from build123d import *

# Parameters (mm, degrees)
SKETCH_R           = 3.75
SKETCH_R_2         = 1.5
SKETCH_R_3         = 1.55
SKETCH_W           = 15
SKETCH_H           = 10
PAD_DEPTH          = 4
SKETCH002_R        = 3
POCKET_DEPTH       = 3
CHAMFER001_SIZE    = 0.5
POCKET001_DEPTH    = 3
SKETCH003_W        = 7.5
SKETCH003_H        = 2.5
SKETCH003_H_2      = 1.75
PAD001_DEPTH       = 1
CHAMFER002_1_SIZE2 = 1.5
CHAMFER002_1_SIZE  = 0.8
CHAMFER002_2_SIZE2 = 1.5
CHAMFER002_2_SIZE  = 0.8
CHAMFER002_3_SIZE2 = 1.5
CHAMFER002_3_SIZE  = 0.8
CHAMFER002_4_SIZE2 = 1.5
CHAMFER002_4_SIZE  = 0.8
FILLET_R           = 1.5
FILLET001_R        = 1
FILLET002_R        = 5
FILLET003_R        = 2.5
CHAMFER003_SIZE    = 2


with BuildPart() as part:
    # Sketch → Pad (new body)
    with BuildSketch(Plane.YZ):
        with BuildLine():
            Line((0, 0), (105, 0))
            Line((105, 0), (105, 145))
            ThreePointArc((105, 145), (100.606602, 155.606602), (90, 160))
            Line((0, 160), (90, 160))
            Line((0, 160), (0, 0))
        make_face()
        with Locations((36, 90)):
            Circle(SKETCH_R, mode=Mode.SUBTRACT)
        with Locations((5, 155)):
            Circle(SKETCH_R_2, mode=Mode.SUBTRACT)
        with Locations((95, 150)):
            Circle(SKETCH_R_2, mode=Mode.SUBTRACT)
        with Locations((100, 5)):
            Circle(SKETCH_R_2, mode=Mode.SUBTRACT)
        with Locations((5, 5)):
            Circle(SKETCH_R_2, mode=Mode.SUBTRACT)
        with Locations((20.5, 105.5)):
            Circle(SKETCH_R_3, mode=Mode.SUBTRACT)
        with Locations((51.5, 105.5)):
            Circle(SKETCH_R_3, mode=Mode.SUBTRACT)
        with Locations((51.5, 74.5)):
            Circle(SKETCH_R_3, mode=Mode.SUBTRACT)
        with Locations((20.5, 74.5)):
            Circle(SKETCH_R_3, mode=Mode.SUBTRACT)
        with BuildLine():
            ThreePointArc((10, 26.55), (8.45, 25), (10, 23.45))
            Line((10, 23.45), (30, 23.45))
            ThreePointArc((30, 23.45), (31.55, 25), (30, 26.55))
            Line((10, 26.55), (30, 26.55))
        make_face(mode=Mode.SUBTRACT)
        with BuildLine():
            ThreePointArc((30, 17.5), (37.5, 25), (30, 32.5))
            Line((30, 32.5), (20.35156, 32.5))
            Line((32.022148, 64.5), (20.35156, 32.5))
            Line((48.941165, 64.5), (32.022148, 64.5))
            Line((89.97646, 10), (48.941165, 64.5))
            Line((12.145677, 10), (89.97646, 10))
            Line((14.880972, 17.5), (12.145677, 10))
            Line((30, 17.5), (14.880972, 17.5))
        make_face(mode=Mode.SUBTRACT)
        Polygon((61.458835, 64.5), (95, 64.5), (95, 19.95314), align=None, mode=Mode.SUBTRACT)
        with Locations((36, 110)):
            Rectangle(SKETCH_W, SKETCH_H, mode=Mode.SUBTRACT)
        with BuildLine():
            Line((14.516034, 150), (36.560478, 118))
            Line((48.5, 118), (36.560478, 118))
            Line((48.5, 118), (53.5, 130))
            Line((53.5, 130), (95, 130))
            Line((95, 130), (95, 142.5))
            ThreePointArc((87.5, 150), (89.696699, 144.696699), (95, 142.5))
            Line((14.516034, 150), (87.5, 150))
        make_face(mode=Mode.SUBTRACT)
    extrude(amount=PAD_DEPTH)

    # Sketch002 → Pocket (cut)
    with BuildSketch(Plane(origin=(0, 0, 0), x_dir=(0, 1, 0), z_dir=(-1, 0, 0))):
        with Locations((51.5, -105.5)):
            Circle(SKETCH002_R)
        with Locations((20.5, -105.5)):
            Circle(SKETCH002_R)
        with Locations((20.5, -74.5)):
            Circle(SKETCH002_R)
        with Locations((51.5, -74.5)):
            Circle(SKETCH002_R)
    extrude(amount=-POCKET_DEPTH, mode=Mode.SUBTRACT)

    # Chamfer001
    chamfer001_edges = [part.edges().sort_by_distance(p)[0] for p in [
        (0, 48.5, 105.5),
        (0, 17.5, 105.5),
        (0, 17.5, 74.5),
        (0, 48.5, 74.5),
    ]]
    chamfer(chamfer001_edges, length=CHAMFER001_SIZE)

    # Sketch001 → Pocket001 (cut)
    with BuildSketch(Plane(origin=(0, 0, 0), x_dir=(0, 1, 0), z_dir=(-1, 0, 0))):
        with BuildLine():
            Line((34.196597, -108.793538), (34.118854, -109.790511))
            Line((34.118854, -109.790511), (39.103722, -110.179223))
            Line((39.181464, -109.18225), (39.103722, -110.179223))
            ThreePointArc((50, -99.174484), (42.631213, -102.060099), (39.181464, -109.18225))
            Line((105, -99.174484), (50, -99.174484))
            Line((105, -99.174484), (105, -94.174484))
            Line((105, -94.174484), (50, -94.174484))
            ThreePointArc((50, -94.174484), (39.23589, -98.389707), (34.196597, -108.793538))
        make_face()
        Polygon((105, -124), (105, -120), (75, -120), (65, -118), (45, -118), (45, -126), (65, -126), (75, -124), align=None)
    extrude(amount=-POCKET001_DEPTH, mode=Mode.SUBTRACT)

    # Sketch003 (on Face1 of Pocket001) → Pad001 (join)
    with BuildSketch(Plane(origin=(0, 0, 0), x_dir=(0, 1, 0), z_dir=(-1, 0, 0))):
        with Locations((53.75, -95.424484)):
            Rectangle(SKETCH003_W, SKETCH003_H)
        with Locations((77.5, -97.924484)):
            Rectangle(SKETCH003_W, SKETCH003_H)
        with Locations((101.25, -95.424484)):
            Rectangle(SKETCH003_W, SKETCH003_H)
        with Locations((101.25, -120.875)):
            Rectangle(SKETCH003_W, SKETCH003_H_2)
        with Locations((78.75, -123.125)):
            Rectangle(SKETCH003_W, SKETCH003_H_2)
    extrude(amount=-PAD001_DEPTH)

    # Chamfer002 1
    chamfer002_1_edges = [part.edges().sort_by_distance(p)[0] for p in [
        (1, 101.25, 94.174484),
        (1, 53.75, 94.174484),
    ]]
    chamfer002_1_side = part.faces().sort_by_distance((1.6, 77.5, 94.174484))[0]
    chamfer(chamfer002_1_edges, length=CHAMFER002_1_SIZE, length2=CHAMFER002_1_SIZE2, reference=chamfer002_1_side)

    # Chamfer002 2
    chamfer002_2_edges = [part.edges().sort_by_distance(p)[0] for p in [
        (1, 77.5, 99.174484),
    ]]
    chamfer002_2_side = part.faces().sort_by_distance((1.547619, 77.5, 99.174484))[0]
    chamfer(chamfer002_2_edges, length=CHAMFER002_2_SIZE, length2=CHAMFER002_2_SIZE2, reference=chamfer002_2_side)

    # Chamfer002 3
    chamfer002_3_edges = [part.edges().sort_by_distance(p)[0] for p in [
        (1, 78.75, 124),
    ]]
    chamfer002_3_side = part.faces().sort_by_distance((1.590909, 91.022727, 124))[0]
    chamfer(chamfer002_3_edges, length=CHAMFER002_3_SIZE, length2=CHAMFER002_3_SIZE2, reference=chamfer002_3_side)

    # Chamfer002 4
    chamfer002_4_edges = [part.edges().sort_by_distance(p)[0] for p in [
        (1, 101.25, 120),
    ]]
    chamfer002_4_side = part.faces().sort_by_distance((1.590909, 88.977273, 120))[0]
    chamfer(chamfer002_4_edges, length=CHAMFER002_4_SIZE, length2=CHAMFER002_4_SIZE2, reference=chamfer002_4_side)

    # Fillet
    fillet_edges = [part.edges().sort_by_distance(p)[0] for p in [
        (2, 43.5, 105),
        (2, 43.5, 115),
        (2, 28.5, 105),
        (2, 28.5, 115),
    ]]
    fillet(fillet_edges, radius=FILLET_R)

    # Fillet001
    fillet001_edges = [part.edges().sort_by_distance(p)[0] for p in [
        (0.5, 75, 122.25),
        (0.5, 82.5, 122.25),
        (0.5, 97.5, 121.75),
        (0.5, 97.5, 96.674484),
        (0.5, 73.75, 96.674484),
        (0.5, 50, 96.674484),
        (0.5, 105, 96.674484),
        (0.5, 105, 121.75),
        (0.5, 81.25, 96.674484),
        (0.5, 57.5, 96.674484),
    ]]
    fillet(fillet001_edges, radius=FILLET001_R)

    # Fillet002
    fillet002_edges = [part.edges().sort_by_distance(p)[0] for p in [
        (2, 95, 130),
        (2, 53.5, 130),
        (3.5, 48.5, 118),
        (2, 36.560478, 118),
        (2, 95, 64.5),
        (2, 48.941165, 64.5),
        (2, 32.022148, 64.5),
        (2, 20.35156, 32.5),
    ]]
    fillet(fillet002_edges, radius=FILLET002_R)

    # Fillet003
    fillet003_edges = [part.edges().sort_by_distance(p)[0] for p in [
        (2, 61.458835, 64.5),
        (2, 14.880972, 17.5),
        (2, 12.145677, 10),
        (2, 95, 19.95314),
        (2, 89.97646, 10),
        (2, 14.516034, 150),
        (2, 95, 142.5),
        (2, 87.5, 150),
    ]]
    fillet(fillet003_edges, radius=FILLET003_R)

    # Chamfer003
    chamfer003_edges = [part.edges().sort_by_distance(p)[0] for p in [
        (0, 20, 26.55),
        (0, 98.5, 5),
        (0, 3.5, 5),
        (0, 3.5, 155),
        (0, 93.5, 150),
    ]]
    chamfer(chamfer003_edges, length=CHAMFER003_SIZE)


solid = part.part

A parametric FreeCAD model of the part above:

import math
import FreeCAD as App
import Part
import Sketcher


def edges_at(feature, points):
    """Names of the edges that pass closest to the given points."""
    edges = feature.Shape.Edges
    near = lambda p: min(range(len(edges)), key=lambda i: edges[i].distToShape(Part.Vertex(*p))[0])
    return sorted({f"Edge{near(p) + 1}" for p in points})

doc = App.newDocument("Part")
body = doc.addObject("PartDesign::Body", "Body")

# Sketch on YZ plane
sketch1 = body.newObject("Sketcher::SketchObject", "Sketch")
sketch1.AttachmentSupport = (doc.getObject("YZ_Plane"), [""])
sketch1.MapMode = "FlatFace"
sketch1.addGeometry([
    Part.LineSegment(App.Vector(0, 0, 0), App.Vector(105, 0, 0)),  # 0
    Part.LineSegment(App.Vector(105, 0, 0), App.Vector(105, 145, 0)),  # 1
    Part.ArcOfCircle(Part.Circle(App.Vector(90, 145, 0), App.Vector(0, 0, 1), 15), math.radians(0), math.radians(90)),  # 2
    Part.LineSegment(App.Vector(90, 160, 0), App.Vector(0, 160, 0)),  # 3
    Part.LineSegment(App.Vector(0, 160, 0), App.Vector(0, 0, 0)),  # 4
    Part.Circle(App.Vector(5, 5, 0), App.Vector(0, 0, 1), 1.5),  # 5
    Part.ArcOfCircle(Part.Circle(App.Vector(10, 25, 0), App.Vector(0, 0, 1), 1.6), math.radians(90), math.radians(270)),  # 6
    Part.LineSegment(App.Vector(10, 26.6, 0), App.Vector(30, 26.6, 0)),  # 7
    Part.ArcOfCircle(Part.Circle(App.Vector(30, 25, 0), App.Vector(0, 0, 1), 1.6), math.radians(-90), math.radians(90)),  # 8
    Part.LineSegment(App.Vector(30, 23.4, 0), App.Vector(10, 23.4, 0)),  # 9
    Part.LineSegment(App.Vector(14.9, 17.5, 0), App.Vector(30, 17.5, 0)),  # 10
    Part.ArcOfCircle(Part.Circle(App.Vector(30, 25, 0), App.Vector(0, 0, 1), 7.5), math.radians(-90), math.radians(90)),  # 11
    Part.LineSegment(App.Vector(30, 32.5, 0), App.Vector(20.4, 32.5, 0)),  # 12
    Part.LineSegment(App.Vector(20.4, 32.5, 0), App.Vector(32, 64.5, 0)),  # 13
    Part.LineSegment(App.Vector(32, 64.5, 0), App.Vector(48.9, 64.5, 0)),  # 14
    Part.LineSegment(App.Vector(48.9, 64.5, 0), App.Vector(90, 10, 0)),  # 15
    Part.LineSegment(App.Vector(90, 10, 0), App.Vector(12.1, 10, 0)),  # 16
    Part.LineSegment(App.Vector(12.1, 10, 0), App.Vector(14.9, 17.5, 0)),  # 17
    Part.Circle(App.Vector(20.5, 74.5, 0), App.Vector(0, 0, 1), 1.6),  # 18
    Part.Circle(App.Vector(51.5, 74.5, 0), App.Vector(0, 0, 1), 1.6),  # 19
    Part.Circle(App.Vector(100, 5, 0), App.Vector(0, 0, 1), 1.5),  # 20
    Part.LineSegment(App.Vector(95, 20, 0), App.Vector(61.5, 64.5, 0)),  # 21
    Part.LineSegment(App.Vector(61.5, 64.5, 0), App.Vector(95, 64.5, 0)),  # 22
    Part.LineSegment(App.Vector(95, 64.5, 0), App.Vector(95, 20, 0)),  # 23
    Part.Circle(App.Vector(20.5, 105.5, 0), App.Vector(0, 0, 1), 1.6),  # 24
    Part.Circle(App.Vector(36, 90, 0), App.Vector(0, 0, 1), 3.8),  # 25
    Part.LineSegment(App.Vector(43.5, 105, 0), App.Vector(28.5, 105, 0)),  # 26
    Part.LineSegment(App.Vector(28.5, 105, 0), App.Vector(28.5, 115, 0)),  # 27
    Part.LineSegment(App.Vector(28.5, 115, 0), App.Vector(43.5, 115, 0)),  # 28
    Part.LineSegment(App.Vector(43.5, 115, 0), App.Vector(43.5, 105, 0)),  # 29
    Part.Circle(App.Vector(51.5, 105.5, 0), App.Vector(0, 0, 1), 1.6),  # 30
    Part.Circle(App.Vector(5, 155, 0), App.Vector(0, 0, 1), 1.5),  # 31
    Part.LineSegment(App.Vector(36.6, 118, 0), App.Vector(14.5, 150, 0)),  # 32
    Part.LineSegment(App.Vector(14.5, 150, 0), App.Vector(87.5, 150, 0)),  # 33
    Part.ArcOfCircle(Part.Circle(App.Vector(95, 150, 0), App.Vector(0, 0, 1), 7.5), math.radians(180), math.radians(270)),  # 34
    Part.LineSegment(App.Vector(95, 142.5, 0), App.Vector(95, 130, 0)),  # 35
    Part.LineSegment(App.Vector(95, 130, 0), App.Vector(53.5, 130, 0)),  # 36
    Part.LineSegment(App.Vector(53.5, 130, 0), App.Vector(48.5, 118, 0)),  # 37
    Part.LineSegment(App.Vector(48.5, 118, 0), App.Vector(36.6, 118, 0)),  # 38
    Part.Circle(App.Vector(95, 150, 0), App.Vector(0, 0, 1), 1.5),  # 39
], False)
sketch1.addConstraint([
    Sketcher.Constraint("Coincident", 0, 2, 1, 1),
    Sketcher.Constraint("Tangent", 1, 2, 2, 1),
    Sketcher.Constraint("Tangent", 2, 2, 3, 1),
    Sketcher.Constraint("Coincident", 3, 2, 4, 1),
    Sketcher.Constraint("Coincident", 4, 2, 0, 1),
    Sketcher.Constraint("Tangent", 6, 1, 7, 1),
    Sketcher.Constraint("Tangent", 7, 2, 8, 2),
    Sketcher.Constraint("Tangent", 8, 1, 9, 1),
    Sketcher.Constraint("Tangent", 9, 2, 6, 2),
    Sketcher.Constraint("Tangent", 10, 2, 11, 1),
    Sketcher.Constraint("Tangent", 11, 2, 12, 1),
    Sketcher.Constraint("Coincident", 12, 2, 13, 1),
    Sketcher.Constraint("Coincident", 13, 2, 14, 1),
    Sketcher.Constraint("Coincident", 14, 2, 15, 1),
    Sketcher.Constraint("Coincident", 15, 2, 16, 1),
    Sketcher.Constraint("Coincident", 16, 2, 17, 1),
    Sketcher.Constraint("Coincident", 17, 2, 10, 1),
    Sketcher.Constraint("Coincident", 21, 2, 22, 1),
    Sketcher.Constraint("Coincident", 22, 2, 23, 1),
    Sketcher.Constraint("Coincident", 23, 2, 21, 1),
    Sketcher.Constraint("Coincident", 26, 2, 27, 1),
    Sketcher.Constraint("Coincident", 27, 2, 28, 1),
    Sketcher.Constraint("Coincident", 28, 2, 29, 1),
    Sketcher.Constraint("Coincident", 29, 2, 26, 1),
    Sketcher.Constraint("Coincident", 32, 2, 33, 1),
    Sketcher.Constraint("Coincident", 33, 2, 34, 1),
    Sketcher.Constraint("Coincident", 34, 2, 35, 1),
    Sketcher.Constraint("Coincident", 35, 2, 36, 1),
    Sketcher.Constraint("Coincident", 36, 2, 37, 1),
    Sketcher.Constraint("Coincident", 37, 2, 38, 1),
    Sketcher.Constraint("Coincident", 38, 2, 32, 1),
    Sketcher.Constraint("Horizontal", 0),
    Sketcher.Constraint("Vertical", 1),
    Sketcher.Constraint("Horizontal", 3),
    Sketcher.Constraint("Vertical", 4),
    Sketcher.Constraint("Horizontal", 7),
    Sketcher.Constraint("Horizontal", 9),
    Sketcher.Constraint("Horizontal", 10),
    Sketcher.Constraint("Horizontal", 12),
    Sketcher.Constraint("Horizontal", 14),
    Sketcher.Constraint("Horizontal", 16),
    Sketcher.Constraint("Horizontal", 22),
    Sketcher.Constraint("Vertical", 23),
    Sketcher.Constraint("Horizontal", 26),
    Sketcher.Constraint("Vertical", 27),
    Sketcher.Constraint("Horizontal", 28),
    Sketcher.Constraint("Vertical", 29),
    Sketcher.Constraint("Horizontal", 33),
    Sketcher.Constraint("Vertical", 35),
    Sketcher.Constraint("Horizontal", 36),
    Sketcher.Constraint("Horizontal", 38),
    Sketcher.Constraint("Coincident", 4, 2, -1, 1),
    Sketcher.Constraint("Coincident", 11, 3, 8, 3),
    Sketcher.Constraint("Coincident", 39, 3, 34, 3),
    Sketcher.Constraint("Equal", 8, 18),
    Sketcher.Constraint("Equal", 18, 19),
    Sketcher.Constraint("Equal", 5, 20),
    Sketcher.Constraint("Equal", 19, 24),
    Sketcher.Constraint("Equal", 24, 30),
    Sketcher.Constraint("Equal", 20, 31),
    Sketcher.Constraint("Equal", 11, 34),
    Sketcher.Constraint("Equal", 31, 39),
    Sketcher.Constraint("Parallel", 13, 17),
    Sketcher.Constraint("Parallel", 15, 21),
    Sketcher.Constraint("Horizontal", 18, 3, 19, 3),
    Sketcher.Constraint("Horizontal", 5, 3, 20, 3),
    Sketcher.Constraint("Horizontal", 24, 3, 30, 3),
    Sketcher.Constraint("Horizontal", 14, 2, 21, 2),
    Sketcher.Constraint("Horizontal", 39, 3, 32, 2),
    Sketcher.Constraint("Vertical", 18, 3, 24, 3),
    Sketcher.Constraint("Vertical", 19, 3, 30, 3),
    Sketcher.Constraint("Vertical", 5, 3, 31, 3),
    Sketcher.Constraint("Vertical", 39, 3, 22, 2),
    Sketcher.Constraint("Vertical", 23, 2, 34, 2),
    Sketcher.Constraint("Diameter", 5, 3.0),
    Sketcher.Constraint("Radius", 2, 14.999999),
    Sketcher.Constraint("Diameter", 18, 3.1),
    Sketcher.Constraint("Diameter", 25, 7.5),
    Sketcher.Constraint("Radius", 11, 7.5),
    Sketcher.Constraint("DistanceX", 0, 1, 0, 2, 105.0),
    Sketcher.Constraint("DistanceX", 7, 1, 7, 2, 20.0),
    Sketcher.Constraint("DistanceX", 26, 2, 26, 1, 15.0),
    Sketcher.Constraint("DistanceY", 1, 1, 1, 2, 145.0),
    Sketcher.Constraint("DistanceY", 27, 1, 27, 2, 10.0),
    Sketcher.Constraint("Distance", 37, 13.0),
    Sketcher.Constraint("DistanceX", 36, 2, 36, 1, 41.5),
    Sketcher.Constraint("DistanceY", 35, 2, 35, 1, 12.5),
    Sketcher.Constraint("DistanceX", -1, 1, 5, 3, 5.0),
    Sketcher.Constraint("DistanceY", -1, 1, 5, 3, 5.0),
    Sketcher.Constraint("DistanceX", -1, 1, 6, 3, 10.0),
    Sketcher.Constraint("DistanceY", -1, 1, 6, 3, 25.0),
    Sketcher.Constraint("DistanceX", -1, 1, 20, 3, 100.0),
    Sketcher.Constraint("DistanceX", -1, 1, 25, 3, 36.0),
    Sketcher.Constraint("DistanceY", -1, 1, 25, 3, 90.0),
    Sketcher.Constraint("DistanceY", -1, 1, 31, 3, 155.0),
    Sketcher.Constraint("DistanceX", -1, 1, 34, 3, 95.0),
    Sketcher.Constraint("DistanceY", -1, 1, 34, 3, 150.0),
    Sketcher.Constraint("DistanceY", -1, 1, 15, 2, 10.0),
    Sketcher.Constraint("DistanceY", -1, 1, 26, 2, 105.0),
    Sketcher.Constraint("DistanceY", -1, 1, 37, 2, 118.0),
    Sketcher.Constraint("DistanceX", 18, 3, 19, 3, 31.0),
    Sketcher.Constraint("DistanceY", 18, 3, 24, 3, 31.0),
    Sketcher.Constraint("DistanceY", 13, 2, 18, 3, 10.0),
    Sketcher.Constraint("DistanceY", 11, 2, 13, 2, 32.0),
    Sketcher.Constraint("DistanceX", 24, 3, 26, 2, 8.0),
    Sketcher.Constraint("DistanceX", 28, 2, 36, 2, 10.0),
    Sketcher.Constraint("DistanceX", 12, 2, 12, 1, 9.64844),
    Sketcher.Constraint("DistanceX", 38, 2, 38, 1, 11.939522),
    Sketcher.Constraint("DistanceY", 23, 2, 23, 1, 44.54686),
    Sketcher.Constraint("Distance", 32, 38.858172),
    Sketcher.Constraint("DistanceX", 10, 1, 10, 2, 15.119028),
    Sketcher.Constraint("DistanceX", 14, 1, 14, 2, 16.919017),
    Sketcher.Constraint("DistanceX", 16, 2, 16, 1, 77.830783),
    Sketcher.Constraint("DistanceX", 22, 1, 22, 2, 33.541165),
])
pad1 = body.newObject("PartDesign::Pad", "Pad")
pad1.Profile = sketch1
pad1.Length = 4

# Sketch on YZ plane
sketch2 = body.newObject("Sketcher::SketchObject", "Sketch001")
sketch2.AttachmentSupport = (doc.getObject("YZ_Plane"), [""])
sketch2.MapMode = "FlatFace"
sketch2.addGeometry([
    Part.Circle(App.Vector(51.5, 105.5, 0), App.Vector(0, 0, 1), 3),
    Part.Circle(App.Vector(20.5, 105.5, 0), App.Vector(0, 0, 1), 3),
    Part.Circle(App.Vector(20.5, 74.5, 0), App.Vector(0, 0, 1), 3),
    Part.Circle(App.Vector(51.5, 74.5, 0), App.Vector(0, 0, 1), 3),
], False)
sketch2.addConstraint([
    Sketcher.Constraint("Equal", 0, 1),
    Sketcher.Constraint("Equal", 1, 2),
    Sketcher.Constraint("Equal", 2, 3),
    Sketcher.Constraint("Horizontal", 0, 3, 1, 3),
    Sketcher.Constraint("Horizontal", 2, 3, 3, 3),
    Sketcher.Constraint("Vertical", 1, 3, 2, 3),
    Sketcher.Constraint("Vertical", 0, 3, 3, 3),
    Sketcher.Constraint("Diameter", 0, 6.0),
    Sketcher.Constraint("DistanceX", 1, 3, 0, 3, 31.0),
    Sketcher.Constraint("DistanceY", 2, 3, 1, 3, 31.0),
    Sketcher.Constraint("DistanceX", -1, 1, 0, 3, 51.5),
    Sketcher.Constraint("DistanceY", -1, 1, 0, 3, 105.5),
])
pocket1 = body.newObject("PartDesign::Pocket", "Pocket")
pocket1.Profile = sketch2
pocket1.Length = 3
pocket1.Reversed = True
doc.recompute()

chamfer = body.newObject("PartDesign::Chamfer", "Chamfer")
chamfer.Base = (pocket1, edges_at(pocket1, [
    (0, 48.5, 105.5),
    (0, 17.5, 105.5),
    (0, 17.5, 74.5),
    (0, 48.5, 74.5),
]))
chamfer.Size = 0.5

# Sketch on YZ plane
sketch3 = body.newObject("Sketcher::SketchObject", "Sketch002")
sketch3.AttachmentSupport = (doc.getObject("YZ_Plane"), [""])
sketch3.MapMode = "FlatFace"
sketch3.addGeometry([
    Part.LineSegment(App.Vector(34.196597, 108.793538, 0), App.Vector(34.118854, 109.790511, 0)),  # 0
    Part.LineSegment(App.Vector(34.118854, 109.790511, 0), App.Vector(39.103722, 110.179223, 0)),  # 1
    Part.LineSegment(App.Vector(39.103722, 110.179223, 0), App.Vector(39.181464, 109.18225, 0)),  # 2
    Part.ArcOfCircle(Part.Circle(App.Vector(50, 110.025862, 0), App.Vector(0, 0, 1), 10.851378), math.radians(-175.54119), math.radians(-90.000001)),  # 3
    Part.LineSegment(App.Vector(50, 99.174484, 0), App.Vector(105, 99.174484, 0)),  # 4
    Part.LineSegment(App.Vector(105, 99.174484, 0), App.Vector(105, 94.174484, 0)),  # 5
    Part.LineSegment(App.Vector(105, 94.174484, 0), App.Vector(50, 94.174484, 0)),  # 6
    Part.ArcOfCircle(Part.Circle(App.Vector(50.000001, 110.025863, 0), App.Vector(0, 0, 1), 15.851379), math.radians(-175.541188), math.radians(-90.000004)),  # 7
    Part.LineSegment(App.Vector(105, 124, 0), App.Vector(105, 120, 0)),  # 8
    Part.LineSegment(App.Vector(105, 120, 0), App.Vector(75, 120, 0)),  # 9
    Part.LineSegment(App.Vector(75, 120, 0), App.Vector(65, 118, 0)),  # 10
    Part.LineSegment(App.Vector(65, 118, 0), App.Vector(45, 118, 0)),  # 11
    Part.LineSegment(App.Vector(45, 118, 0), App.Vector(45, 126, 0)),  # 12
    Part.LineSegment(App.Vector(45, 126, 0), App.Vector(65, 126, 0)),  # 13
    Part.LineSegment(App.Vector(65, 126, 0), App.Vector(75, 124, 0)),  # 14
    Part.LineSegment(App.Vector(75, 124, 0), App.Vector(105, 124, 0)),  # 15
], False)
sketch3.addConstraint([
    Sketcher.Constraint("Coincident", 0, 2, 1, 1),
    Sketcher.Constraint("Coincident", 1, 2, 2, 1),
    Sketcher.Constraint("Coincident", 2, 2, 3, 1),
    Sketcher.Constraint("Coincident", 3, 2, 4, 1),
    Sketcher.Constraint("Coincident", 4, 2, 5, 1),
    Sketcher.Constraint("Coincident", 5, 2, 6, 1),
    Sketcher.Constraint("Coincident", 6, 2, 7, 2),
    Sketcher.Constraint("Coincident", 7, 1, 0, 1),
    Sketcher.Constraint("Coincident", 8, 2, 9, 1),
    Sketcher.Constraint("Coincident", 9, 2, 10, 1),
    Sketcher.Constraint("Coincident", 10, 2, 11, 1),
    Sketcher.Constraint("Coincident", 11, 2, 12, 1),
    Sketcher.Constraint("Coincident", 12, 2, 13, 1),
    Sketcher.Constraint("Coincident", 13, 2, 14, 1),
    Sketcher.Constraint("Coincident", 14, 2, 15, 1),
    Sketcher.Constraint("Coincident", 15, 2, 8, 1),
    Sketcher.Constraint("Horizontal", 4),
    Sketcher.Constraint("Vertical", 5),
    Sketcher.Constraint("Horizontal", 6),
    Sketcher.Constraint("Vertical", 8),
    Sketcher.Constraint("Horizontal", 9),
    Sketcher.Constraint("Horizontal", 11),
    Sketcher.Constraint("Vertical", 12),
    Sketcher.Constraint("Horizontal", 13),
    Sketcher.Constraint("Horizontal", 15),
    Sketcher.Constraint("Coincident", 7, 3, 3, 3),
    Sketcher.Constraint("DistanceX", 4, 1, 4, 2, 55.0),
    Sketcher.Constraint("DistanceX", 6, 2, 6, 1, 55.0),
    Sketcher.Constraint("DistanceX", 9, 2, 9, 1, 30.0),
    Sketcher.Constraint("DistanceX", 11, 2, 11, 1, 20.0),
    Sketcher.Constraint("DistanceX", 13, 1, 13, 2, 20.0),
    Sketcher.Constraint("DistanceX", 15, 1, 15, 2, 30.0),
    Sketcher.Constraint("DistanceY", 5, 2, 5, 1, 5.0),
    Sketcher.Constraint("DistanceY", 8, 2, 8, 1, 4.0),
    Sketcher.Constraint("DistanceY", 12, 1, 12, 2, 8.0),
    Sketcher.Constraint("Distance", 0, 1.0),
    Sketcher.Constraint("Distance", 1, 5.000001),
    Sketcher.Constraint("Distance", 2, 0.999999),
    Sketcher.Constraint("DistanceX", -1, 1, 3, 3, 50.0),
    Sketcher.Constraint("DistanceX", -1, 1, 3, 2, 50.0),
    Sketcher.Constraint("DistanceX", -1, 1, 8, 2, 105.0),
    Sketcher.Constraint("DistanceY", -1, 1, 8, 2, 120.0),
    Sketcher.Constraint("DistanceX", -1, 1, 10, 2, 65.0),
    Sketcher.Constraint("DistanceY", -1, 1, 10, 2, 118.0),
    Sketcher.Constraint("Radius", 3, 10.851378),
    Sketcher.Constraint("DistanceY", -1, 1, 0, 2, 109.790511),
    Sketcher.Constraint("DistanceX", -1, 1, 1, 2, 39.103722),
    Sketcher.Constraint("DistanceY", -1, 1, 2, 2, 109.18225),
    Sketcher.Constraint("DistanceY", 0, 2, 3, 3, 0.235351),
])
pocket2 = body.newObject("PartDesign::Pocket", "Pocket001")
pocket2.Profile = sketch3
pocket2.Length = 3
pocket2.Reversed = True

# Sketch on YZ plane
sketch4 = body.newObject("Sketcher::SketchObject", "Sketch003")
sketch4.AttachmentSupport = (doc.getObject("YZ_Plane"), [""])
sketch4.MapMode = "FlatFace"
sketch4.addGeometry([
    Part.LineSegment(App.Vector(50, 94.2, 0), App.Vector(50, 96.7, 0)),  # 0
    Part.LineSegment(App.Vector(50, 96.7, 0), App.Vector(57.5, 96.7, 0)),  # 1
    Part.LineSegment(App.Vector(57.5, 96.7, 0), App.Vector(57.5, 94.2, 0)),  # 2
    Part.LineSegment(App.Vector(57.5, 94.2, 0), App.Vector(50, 94.2, 0)),  # 3
    Part.LineSegment(App.Vector(73.8, 96.7, 0), App.Vector(73.8, 99.2, 0)),  # 4
    Part.LineSegment(App.Vector(73.8, 99.2, 0), App.Vector(81.2, 99.2, 0)),  # 5
    Part.LineSegment(App.Vector(81.2, 99.2, 0), App.Vector(81.2, 96.7, 0)),  # 6
    Part.LineSegment(App.Vector(81.2, 96.7, 0), App.Vector(73.8, 96.7, 0)),  # 7
    Part.LineSegment(App.Vector(97.5, 94.2, 0), App.Vector(97.5, 96.7, 0)),  # 8
    Part.LineSegment(App.Vector(97.5, 96.7, 0), App.Vector(105, 96.7, 0)),  # 9
    Part.LineSegment(App.Vector(105, 96.7, 0), App.Vector(105, 94.2, 0)),  # 10
    Part.LineSegment(App.Vector(105, 94.2, 0), App.Vector(97.5, 94.2, 0)),  # 11
    Part.LineSegment(App.Vector(97.5, 120, 0), App.Vector(97.5, 121.8, 0)),  # 12
    Part.LineSegment(App.Vector(97.5, 121.8, 0), App.Vector(105, 121.8, 0)),  # 13
    Part.LineSegment(App.Vector(105, 121.8, 0), App.Vector(105, 120, 0)),  # 14
    Part.LineSegment(App.Vector(105, 120, 0), App.Vector(97.5, 120, 0)),  # 15
    Part.LineSegment(App.Vector(75, 122.2, 0), App.Vector(75, 124, 0)),  # 16
    Part.LineSegment(App.Vector(75, 124, 0), App.Vector(82.5, 124, 0)),  # 17
    Part.LineSegment(App.Vector(82.5, 124, 0), App.Vector(82.5, 122.2, 0)),  # 18
    Part.LineSegment(App.Vector(82.5, 122.2, 0), App.Vector(75, 122.2, 0)),  # 19
], False)
sketch4.addConstraint([
    Sketcher.Constraint("Coincident", 0, 2, 1, 1),
    Sketcher.Constraint("Coincident", 1, 2, 2, 1),
    Sketcher.Constraint("Coincident", 2, 2, 3, 1),
    Sketcher.Constraint("Coincident", 3, 2, 0, 1),
    Sketcher.Constraint("Coincident", 4, 2, 5, 1),
    Sketcher.Constraint("Coincident", 5, 2, 6, 1),
    Sketcher.Constraint("Coincident", 6, 2, 7, 1),
    Sketcher.Constraint("Coincident", 7, 2, 4, 1),
    Sketcher.Constraint("Coincident", 8, 2, 9, 1),
    Sketcher.Constraint("Coincident", 9, 2, 10, 1),
    Sketcher.Constraint("Coincident", 10, 2, 11, 1),
    Sketcher.Constraint("Coincident", 11, 2, 8, 1),
    Sketcher.Constraint("Coincident", 12, 2, 13, 1),
    Sketcher.Constraint("Coincident", 13, 2, 14, 1),
    Sketcher.Constraint("Coincident", 14, 2, 15, 1),
    Sketcher.Constraint("Coincident", 15, 2, 12, 1),
    Sketcher.Constraint("Coincident", 16, 2, 17, 1),
    Sketcher.Constraint("Coincident", 17, 2, 18, 1),
    Sketcher.Constraint("Coincident", 18, 2, 19, 1),
    Sketcher.Constraint("Coincident", 19, 2, 16, 1),
    Sketcher.Constraint("Vertical", 0),
    Sketcher.Constraint("Horizontal", 1),
    Sketcher.Constraint("Vertical", 2),
    Sketcher.Constraint("Horizontal", 3),
    Sketcher.Constraint("Vertical", 4),
    Sketcher.Constraint("Horizontal", 5),
    Sketcher.Constraint("Vertical", 6),
    Sketcher.Constraint("Horizontal", 7),
    Sketcher.Constraint("Vertical", 8),
    Sketcher.Constraint("Horizontal", 9),
    Sketcher.Constraint("Vertical", 10),
    Sketcher.Constraint("Horizontal", 11),
    Sketcher.Constraint("Vertical", 12),
    Sketcher.Constraint("Horizontal", 13),
    Sketcher.Constraint("Vertical", 14),
    Sketcher.Constraint("Horizontal", 15),
    Sketcher.Constraint("Vertical", 16),
    Sketcher.Constraint("Horizontal", 17),
    Sketcher.Constraint("Vertical", 18),
    Sketcher.Constraint("Horizontal", 19),
    Sketcher.Constraint("Horizontal", 1, 2, 6, 2),
    Sketcher.Constraint("Horizontal", 7, 2, 8, 2),
    Sketcher.Constraint("Horizontal", 3, 2, 10, 2),
    Sketcher.Constraint("Vertical", 11, 2, 12, 2),
    Sketcher.Constraint("Vertical", 10, 2, 13, 2),
    Sketcher.Constraint("Equal", 3, 5),
    Sketcher.Constraint("Equal", 7, 9),
    Sketcher.Constraint("Equal", 15, 17),
    Sketcher.Constraint("Equal", 2, 4),
    Sketcher.Constraint("Equal", 14, 16),
    Sketcher.Constraint("DistanceX", 1, 1, 1, 2, 7.5),
    Sketcher.Constraint("DistanceY", 0, 1, 0, 2, 2.5),
    Sketcher.Constraint("DistanceX", -1, 1, 0, 2, 50.0),
    Sketcher.Constraint("DistanceX", -1, 1, 9, 2, 105.0),
    Sketcher.Constraint("DistanceY", -1, 1, 14, 2, 120.0),
    Sketcher.Constraint("DistanceX", -1, 1, 16, 2, 75.0),
    Sketcher.Constraint("DistanceY", -1, 1, 16, 2, 124.0),
    Sketcher.Constraint("DistanceY", 12, 1, 12, 2, 1.75),
    Sketcher.Constraint("DistanceX", -1, 1, 4, 2, 73.75),
    Sketcher.Constraint("DistanceY", -1, 1, 0, 2, 96.674484),
])
pad2 = body.newObject("PartDesign::Pad", "Pad001")
pad2.Profile = sketch4
pad2.Length = 1
doc.recompute()

chamfer2 = body.newObject("PartDesign::Chamfer", "Chamfer001")
chamfer2.Base = (pad2, edges_at(pad2, [(1, 101.25, 94.174), (1, 53.75, 94.174)]))
chamfer2.ChamferType = "Two distances"
chamfer2.Size = 0.8
chamfer2.Size2 = 1.5
doc.recompute()

chamfer3 = body.newObject("PartDesign::Chamfer", "Chamfer002")
chamfer3.Base = (chamfer2, edges_at(chamfer2, [(1, 77.5, 99.174)]))
chamfer3.ChamferType = "Two distances"
chamfer3.Size = 0.8
chamfer3.Size2 = 1.5
doc.recompute()

chamfer4 = body.newObject("PartDesign::Chamfer", "Chamfer003")
chamfer4.Base = (chamfer3, edges_at(chamfer3, [(1, 78.75, 124)]))
chamfer4.ChamferType = "Two distances"
chamfer4.Size = 0.8
chamfer4.Size2 = 1.5
doc.recompute()

chamfer5 = body.newObject("PartDesign::Chamfer", "Chamfer004")
chamfer5.Base = (chamfer4, edges_at(chamfer4, [(1, 101.25, 120)]))
chamfer5.ChamferType = "Two distances"
chamfer5.Size = 0.8
chamfer5.Size2 = 1.5
doc.recompute()

fillet = body.newObject("PartDesign::Fillet", "Fillet")
fillet.Base = (chamfer5, edges_at(chamfer5, [
    (2, 43.5, 105),
    (2, 43.5, 115),
    (2, 28.5, 105),
    (2, 28.5, 115),
]))
fillet.Radius = 1.5
doc.recompute()

fillet2 = body.newObject("PartDesign::Fillet", "Fillet001")
fillet2.Base = (fillet, edges_at(fillet, [
    (0.5, 75, 122.25),
    (0.5, 82.5, 122.25),
    (0.5, 97.5, 121.75),
    (0.5, 97.5, 96.674),
    (0.5, 73.75, 96.674),
    (0.5, 50, 96.674),
    (0.5, 105, 96.674),
    (0.5, 105, 121.75),
    (0.5, 81.25, 96.674),
    (0.5, 57.5, 96.674),
]))
fillet2.Radius = 1
doc.recompute()

fillet3 = body.newObject("PartDesign::Fillet", "Fillet002")
fillet3.Base = (fillet2, edges_at(fillet2, [
    (2, 95, 130),
    (2, 53.5, 130),
    (3.5, 48.5, 118),
    (2, 36.56, 118),
    (2, 95, 64.5),
    (2, 48.941, 64.5),
    (2, 32.022, 64.5),
    (2, 20.352, 32.5),
]))
fillet3.Radius = 5
doc.recompute()

fillet4 = body.newObject("PartDesign::Fillet", "Fillet003")
fillet4.Base = (fillet3, edges_at(fillet3, [
    (2, 61.459, 64.5),
    (2, 14.881, 17.5),
    (2, 12.146, 10),
    (2, 95, 19.953),
    (2, 89.976, 10),
    (2, 14.516, 150),
    (2, 95, 142.5),
    (2, 87.5, 150),
]))
fillet4.Radius = 2.5
doc.recompute()

chamfer6 = body.newObject("PartDesign::Chamfer", "Chamfer005")
chamfer6.Base = (fillet4, edges_at(fillet4, [
    (0, 20, 26.55),
    (0, 98.5, 5),
    (0, 3.5, 5),
    (0, 3.5, 155),
    (0, 93.5, 150),
]))
chamfer6.Size = 2

doc.recompute()
